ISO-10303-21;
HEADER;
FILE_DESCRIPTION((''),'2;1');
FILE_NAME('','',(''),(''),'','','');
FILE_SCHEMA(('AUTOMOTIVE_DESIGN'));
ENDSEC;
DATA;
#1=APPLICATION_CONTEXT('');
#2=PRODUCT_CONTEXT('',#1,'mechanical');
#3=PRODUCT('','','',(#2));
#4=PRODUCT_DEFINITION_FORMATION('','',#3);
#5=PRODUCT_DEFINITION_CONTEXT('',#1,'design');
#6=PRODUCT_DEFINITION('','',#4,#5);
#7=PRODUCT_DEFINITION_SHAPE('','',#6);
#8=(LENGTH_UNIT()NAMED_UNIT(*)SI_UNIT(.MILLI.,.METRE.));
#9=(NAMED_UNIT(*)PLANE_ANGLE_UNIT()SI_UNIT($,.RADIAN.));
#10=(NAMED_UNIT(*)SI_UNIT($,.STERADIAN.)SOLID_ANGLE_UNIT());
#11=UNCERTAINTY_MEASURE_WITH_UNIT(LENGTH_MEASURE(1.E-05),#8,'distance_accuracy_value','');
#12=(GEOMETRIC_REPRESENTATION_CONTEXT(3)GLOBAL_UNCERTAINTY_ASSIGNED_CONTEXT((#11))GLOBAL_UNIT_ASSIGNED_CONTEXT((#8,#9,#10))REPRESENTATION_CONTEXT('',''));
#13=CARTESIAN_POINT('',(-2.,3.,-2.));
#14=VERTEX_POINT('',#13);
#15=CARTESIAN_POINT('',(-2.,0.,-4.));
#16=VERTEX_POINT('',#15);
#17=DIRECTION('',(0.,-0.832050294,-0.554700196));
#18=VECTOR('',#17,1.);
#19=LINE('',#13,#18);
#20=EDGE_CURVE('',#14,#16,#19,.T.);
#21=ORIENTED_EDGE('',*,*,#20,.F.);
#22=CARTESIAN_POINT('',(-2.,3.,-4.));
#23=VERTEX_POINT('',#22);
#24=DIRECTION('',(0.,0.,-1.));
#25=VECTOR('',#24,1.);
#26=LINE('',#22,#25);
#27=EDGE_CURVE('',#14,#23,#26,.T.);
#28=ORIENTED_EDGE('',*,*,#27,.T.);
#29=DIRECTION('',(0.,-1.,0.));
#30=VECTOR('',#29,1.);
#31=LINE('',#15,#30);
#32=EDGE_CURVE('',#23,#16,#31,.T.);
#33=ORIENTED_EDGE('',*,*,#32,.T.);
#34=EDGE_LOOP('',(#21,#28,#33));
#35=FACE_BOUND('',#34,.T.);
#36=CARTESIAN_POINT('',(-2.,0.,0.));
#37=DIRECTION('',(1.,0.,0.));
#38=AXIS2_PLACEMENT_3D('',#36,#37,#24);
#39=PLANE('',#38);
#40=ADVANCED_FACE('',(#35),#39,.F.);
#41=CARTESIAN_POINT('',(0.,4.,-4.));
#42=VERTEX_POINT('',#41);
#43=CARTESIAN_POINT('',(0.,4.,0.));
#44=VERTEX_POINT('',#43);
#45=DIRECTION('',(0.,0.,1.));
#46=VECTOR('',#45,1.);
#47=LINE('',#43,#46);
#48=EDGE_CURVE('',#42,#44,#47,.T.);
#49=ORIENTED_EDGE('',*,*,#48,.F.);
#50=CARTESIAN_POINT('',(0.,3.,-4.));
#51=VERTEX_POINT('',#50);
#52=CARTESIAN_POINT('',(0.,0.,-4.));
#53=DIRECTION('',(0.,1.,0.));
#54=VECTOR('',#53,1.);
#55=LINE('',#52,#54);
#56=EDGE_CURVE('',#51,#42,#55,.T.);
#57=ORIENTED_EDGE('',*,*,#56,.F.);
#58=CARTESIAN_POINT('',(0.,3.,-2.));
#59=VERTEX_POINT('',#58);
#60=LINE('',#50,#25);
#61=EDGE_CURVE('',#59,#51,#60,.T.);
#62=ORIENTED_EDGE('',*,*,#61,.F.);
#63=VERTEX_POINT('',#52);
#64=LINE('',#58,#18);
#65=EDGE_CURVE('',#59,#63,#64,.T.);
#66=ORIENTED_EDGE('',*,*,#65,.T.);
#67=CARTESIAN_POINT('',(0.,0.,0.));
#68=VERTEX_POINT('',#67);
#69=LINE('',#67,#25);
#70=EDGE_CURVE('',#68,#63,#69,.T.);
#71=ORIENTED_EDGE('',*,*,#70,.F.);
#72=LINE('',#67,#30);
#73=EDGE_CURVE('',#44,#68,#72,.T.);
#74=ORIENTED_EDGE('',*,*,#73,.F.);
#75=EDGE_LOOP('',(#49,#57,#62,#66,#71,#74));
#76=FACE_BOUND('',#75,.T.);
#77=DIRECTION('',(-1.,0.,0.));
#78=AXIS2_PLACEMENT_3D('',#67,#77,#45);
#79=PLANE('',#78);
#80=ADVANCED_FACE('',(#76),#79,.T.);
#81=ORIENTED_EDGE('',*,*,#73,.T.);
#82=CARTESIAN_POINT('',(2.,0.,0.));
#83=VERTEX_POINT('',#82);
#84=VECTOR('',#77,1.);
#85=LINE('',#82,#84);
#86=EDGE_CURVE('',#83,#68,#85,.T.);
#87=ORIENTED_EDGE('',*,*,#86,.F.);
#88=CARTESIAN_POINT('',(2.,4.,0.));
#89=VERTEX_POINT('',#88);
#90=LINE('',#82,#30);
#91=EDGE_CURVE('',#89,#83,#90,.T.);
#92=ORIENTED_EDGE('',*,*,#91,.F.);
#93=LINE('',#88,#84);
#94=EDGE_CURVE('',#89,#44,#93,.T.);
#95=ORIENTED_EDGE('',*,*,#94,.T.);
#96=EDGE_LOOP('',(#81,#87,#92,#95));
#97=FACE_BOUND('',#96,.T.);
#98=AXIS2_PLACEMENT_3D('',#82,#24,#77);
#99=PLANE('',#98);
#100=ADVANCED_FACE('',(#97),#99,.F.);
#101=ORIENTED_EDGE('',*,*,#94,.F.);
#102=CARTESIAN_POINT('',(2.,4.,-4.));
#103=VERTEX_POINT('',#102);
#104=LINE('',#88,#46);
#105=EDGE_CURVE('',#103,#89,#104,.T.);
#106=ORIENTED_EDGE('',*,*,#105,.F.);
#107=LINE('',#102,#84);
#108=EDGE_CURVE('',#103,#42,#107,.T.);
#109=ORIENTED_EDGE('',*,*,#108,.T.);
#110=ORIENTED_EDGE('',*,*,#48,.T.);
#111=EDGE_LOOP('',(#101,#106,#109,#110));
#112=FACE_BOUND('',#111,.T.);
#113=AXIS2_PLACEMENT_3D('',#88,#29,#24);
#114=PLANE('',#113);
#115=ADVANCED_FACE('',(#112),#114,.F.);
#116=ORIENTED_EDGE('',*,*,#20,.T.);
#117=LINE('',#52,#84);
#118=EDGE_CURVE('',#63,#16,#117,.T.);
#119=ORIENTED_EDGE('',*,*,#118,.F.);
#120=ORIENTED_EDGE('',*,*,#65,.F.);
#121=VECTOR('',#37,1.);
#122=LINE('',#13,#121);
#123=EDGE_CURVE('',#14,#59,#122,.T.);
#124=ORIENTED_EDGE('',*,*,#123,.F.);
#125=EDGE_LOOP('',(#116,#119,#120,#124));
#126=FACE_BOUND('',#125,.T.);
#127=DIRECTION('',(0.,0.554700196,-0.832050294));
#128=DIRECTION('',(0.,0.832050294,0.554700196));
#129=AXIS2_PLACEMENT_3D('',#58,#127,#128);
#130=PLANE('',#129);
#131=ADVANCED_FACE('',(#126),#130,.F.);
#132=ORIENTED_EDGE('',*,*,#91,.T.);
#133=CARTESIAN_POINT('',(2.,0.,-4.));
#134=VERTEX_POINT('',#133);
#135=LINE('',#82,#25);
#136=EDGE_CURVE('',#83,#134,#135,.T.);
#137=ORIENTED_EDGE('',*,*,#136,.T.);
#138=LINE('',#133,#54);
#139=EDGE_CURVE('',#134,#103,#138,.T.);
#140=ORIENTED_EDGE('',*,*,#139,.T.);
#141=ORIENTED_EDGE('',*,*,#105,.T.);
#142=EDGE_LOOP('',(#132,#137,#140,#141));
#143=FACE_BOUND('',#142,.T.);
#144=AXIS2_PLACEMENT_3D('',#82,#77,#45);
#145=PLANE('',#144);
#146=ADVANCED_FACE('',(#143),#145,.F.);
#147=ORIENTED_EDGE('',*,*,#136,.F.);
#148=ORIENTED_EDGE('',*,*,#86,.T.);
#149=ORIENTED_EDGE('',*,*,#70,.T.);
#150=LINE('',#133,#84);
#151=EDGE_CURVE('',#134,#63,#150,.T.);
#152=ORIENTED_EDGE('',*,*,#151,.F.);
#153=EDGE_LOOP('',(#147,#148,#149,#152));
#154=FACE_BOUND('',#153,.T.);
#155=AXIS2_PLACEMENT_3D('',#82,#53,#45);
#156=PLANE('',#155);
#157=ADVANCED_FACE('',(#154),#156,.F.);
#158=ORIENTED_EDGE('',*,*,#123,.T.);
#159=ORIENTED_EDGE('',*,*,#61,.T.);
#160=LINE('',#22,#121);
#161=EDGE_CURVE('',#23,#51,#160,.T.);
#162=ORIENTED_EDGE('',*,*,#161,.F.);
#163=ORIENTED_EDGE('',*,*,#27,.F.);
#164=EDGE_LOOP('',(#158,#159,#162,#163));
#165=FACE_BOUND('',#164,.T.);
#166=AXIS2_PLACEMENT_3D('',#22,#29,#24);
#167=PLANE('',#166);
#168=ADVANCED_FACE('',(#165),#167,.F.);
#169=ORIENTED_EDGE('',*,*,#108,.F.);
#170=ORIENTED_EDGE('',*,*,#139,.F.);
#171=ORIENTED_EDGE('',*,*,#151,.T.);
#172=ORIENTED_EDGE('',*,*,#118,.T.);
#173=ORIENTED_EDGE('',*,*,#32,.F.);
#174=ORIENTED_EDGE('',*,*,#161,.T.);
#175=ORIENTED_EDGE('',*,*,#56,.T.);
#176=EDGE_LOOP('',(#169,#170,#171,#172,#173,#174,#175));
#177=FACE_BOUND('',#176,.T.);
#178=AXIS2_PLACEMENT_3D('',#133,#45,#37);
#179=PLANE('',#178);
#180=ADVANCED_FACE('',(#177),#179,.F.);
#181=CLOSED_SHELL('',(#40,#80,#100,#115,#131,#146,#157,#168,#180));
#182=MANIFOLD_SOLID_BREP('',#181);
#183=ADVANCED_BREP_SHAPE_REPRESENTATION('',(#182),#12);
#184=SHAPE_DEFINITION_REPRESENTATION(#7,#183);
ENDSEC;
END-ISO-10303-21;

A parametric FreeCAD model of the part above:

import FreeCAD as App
import Part
import Sketcher

V = App.Vector

doc = App.newDocument("Part")
params = doc.addObject("Spreadsheet::Sheet", "Params")
for row, (alias, value) in enumerate([
    ("sketch1_width", "4 mm"),
    ("pad1_length", "2 mm"),
    ("sketch2_width", "3 mm"),
    ("sketch2_height", "2 mm"),
    ("pad2_length", "2 mm"),
    ("sketch3_width", "3 mm"),
    ("sketch3_height", "2 mm"),
    ("pocket1_length", "2 mm"),
], start=1):
    params.set(f"A{row}", alias)
    params.set(f"B{row}", "=" + value)
    params.setAlias(f"B{row}", alias)

body = doc.addObject("PartDesign::Body", "Body")

# Sketch on YZ plane
sketch1 = body.newObject("Sketcher::SketchObject", "Sketch")
sketch1.AttachmentSupport = (doc.getObject("YZ_Plane"), [""])
sketch1.MapMode = "FlatFace"
sketch1.addGeometry(Part.LineSegment(V(4, 0, 0), V(0, 0, 0)), False)
sketch1.addGeometry(Part.LineSegment(V(0, 0, 0), V(0, -4, 0)), False)
sketch1.addGeometry(Part.LineSegment(V(0, -4, 0), V(4, -4, 0)), False)
sketch1.addGeometry(Part.LineSegment(V(4, -4, 0), V(4, 0, 0)), False)
sketch1.addConstraint(Sketcher.Constraint("Coincident", 0, 2, 1, 1))
sketch1.addConstraint(Sketcher.Constraint("Coincident", 1, 2, 2, 1))
sketch1.addConstraint(Sketcher.Constraint("Coincident", 2, 2, 3, 1))
sketch1.addConstraint(Sketcher.Constraint("Coincident", 3, 2, 0, 1))
sketch1.addConstraint(Sketcher.Constraint("Horizontal", 0))
sketch1.addConstraint(Sketcher.Constraint("Vertical", 1))
sketch1.addConstraint(Sketcher.Constraint("Horizontal", 2))
sketch1.addConstraint(Sketcher.Constraint("Vertical", 3))
sketch1.addConstraint(Sketcher.Constraint("Coincident", 0, 2, -1, 1))
sketch1.addConstraint(Sketcher.Constraint("Equal", 2, 1))
sketch1.addConstraint(Sketcher.Constraint("DistanceX", 0, 2, 0, 1, 4.0))
sketch1.setExpression("Constraints[10]", "Params.sketch1_width")
pad1 = body.newObject("PartDesign::Pad", "Pad")
pad1.Profile = sketch1
pad1.setExpression("Length", "Params.pad1_length")

# Sketch on YZ plane
sketch2 = body.newObject("Sketcher::SketchObject", "Sketch001")
sketch2.AttachmentSupport = (doc.getObject("YZ_Plane"), [""])
sketch2.MapMode = "FlatFace"
sketch2.addGeometry(Part.LineSegment(V(3, -4, 0), V(0, -4, 0)), False)
sketch2.addGeometry(Part.LineSegment(V(0, -4, 0), V(0, -2, 0)), False)
sketch2.addGeometry(Part.LineSegment(V(0, -2, 0), V(3, -2, 0)), False)
sketch2.addGeometry(Part.LineSegment(V(3, -2, 0), V(3, -4, 0)), False)
sketch2.addConstraint(Sketcher.Constraint("Coincident", 0, 2, 1, 1))
sketch2.addConstraint(Sketcher.Constraint("Coincident", 1, 2, 2, 1))
sketch2.addConstraint(Sketcher.Constraint("Coincident", 2, 2, 3, 1))
sketch2.addConstraint(Sketcher.Constraint("Coincident", 3, 2, 0, 1))
sketch2.addConstraint(Sketcher.Constraint("Horizontal", 0))
sketch2.addConstraint(Sketcher.Constraint("Vertical", 1))
sketch2.addConstraint(Sketcher.Constraint("Horizontal", 2))
sketch2.addConstraint(Sketcher.Constraint("Vertical", 3))
sketch2.addConstraint(Sketcher.Constraint("PointOnObject", 0, 2, -2))
sketch2.addConstraint(Sketcher.Constraint("DistanceX", 0, 2, 0, 1, 3.0))
sketch2.addConstraint(Sketcher.Constraint("DistanceY", 1, 1, 1, 2, 2.0))
sketch2.addConstraint(Sketcher.Constraint("DistanceY", 0, 2, -1, 1, 4.0))
sketch2.setExpression("Constraints[9]", "Params.sketch2_width")
sketch2.setExpression("Constraints[10]", "Params.sketch2_height")
pad2 = body.newObject("PartDesign::Pad", "Pad001")
pad2.Profile = sketch2
pad2.setExpression("Length", "Params.pad2_length")
pad2.Reversed = True

# Sketch on YZ plane
sketch3 = body.newObject("Sketcher::SketchObject", "Sketch002")
sketch3.AttachmentSupport = (doc.getObject("YZ_Plane"), [""])
sketch3.MapMode = "FlatFace"
sketch3.AttachmentOffset = App.Placement(V(0, 0, -2), App.Rotation())
sketch3.addGeometry(Part.LineSegment(V(3, -2, 0), V(0, -4, 0)), False)
sketch3.addGeometry(Part.LineSegment(V(0, -4, 0), V(0, -2, 0)), False)
sketch3.addGeometry(Part.LineSegment(V(0, -2, 0), V(3, -2, 0)), False)
sketch3.addConstraint(Sketcher.Constraint("Coincident", 0, 2, 1, 1))
sketch3.addConstraint(Sketcher.Constraint("Coincident", 1, 2, 2, 1))
sketch3.addConstraint(Sketcher.Constraint("Coincident", 2, 2, 0, 1))
sketch3.addConstraint(Sketcher.Constraint("Vertical", 1))
sketch3.addConstraint(Sketcher.Constraint("Horizontal", 2))
sketch3.addConstraint(Sketcher.Constraint("PointOnObject", 0, 2, -2))
sketch3.addConstraint(Sketcher.Constraint("DistanceX", 2, 1, 2, 2, 3.0))
sketch3.addConstraint(Sketcher.Constraint("DistanceY", 1, 1, 1, 2, 2.0))
sketch3.addConstraint(Sketcher.Constraint("DistanceY", 0, 2, -1, 1, 4.0))
sketch3.setExpression("Constraints[6]", "Params.sketch3_width")
sketch3.setExpression("Constraints[7]", "Params.sketch3_height")
pocket1 = body.newObject("PartDesign::Pocket", "Pocket")
pocket1.Profile = sketch3
pocket1.setExpression("Length", "Params.pocket1_length")
pocket1.Reversed = True

doc.recompute()
